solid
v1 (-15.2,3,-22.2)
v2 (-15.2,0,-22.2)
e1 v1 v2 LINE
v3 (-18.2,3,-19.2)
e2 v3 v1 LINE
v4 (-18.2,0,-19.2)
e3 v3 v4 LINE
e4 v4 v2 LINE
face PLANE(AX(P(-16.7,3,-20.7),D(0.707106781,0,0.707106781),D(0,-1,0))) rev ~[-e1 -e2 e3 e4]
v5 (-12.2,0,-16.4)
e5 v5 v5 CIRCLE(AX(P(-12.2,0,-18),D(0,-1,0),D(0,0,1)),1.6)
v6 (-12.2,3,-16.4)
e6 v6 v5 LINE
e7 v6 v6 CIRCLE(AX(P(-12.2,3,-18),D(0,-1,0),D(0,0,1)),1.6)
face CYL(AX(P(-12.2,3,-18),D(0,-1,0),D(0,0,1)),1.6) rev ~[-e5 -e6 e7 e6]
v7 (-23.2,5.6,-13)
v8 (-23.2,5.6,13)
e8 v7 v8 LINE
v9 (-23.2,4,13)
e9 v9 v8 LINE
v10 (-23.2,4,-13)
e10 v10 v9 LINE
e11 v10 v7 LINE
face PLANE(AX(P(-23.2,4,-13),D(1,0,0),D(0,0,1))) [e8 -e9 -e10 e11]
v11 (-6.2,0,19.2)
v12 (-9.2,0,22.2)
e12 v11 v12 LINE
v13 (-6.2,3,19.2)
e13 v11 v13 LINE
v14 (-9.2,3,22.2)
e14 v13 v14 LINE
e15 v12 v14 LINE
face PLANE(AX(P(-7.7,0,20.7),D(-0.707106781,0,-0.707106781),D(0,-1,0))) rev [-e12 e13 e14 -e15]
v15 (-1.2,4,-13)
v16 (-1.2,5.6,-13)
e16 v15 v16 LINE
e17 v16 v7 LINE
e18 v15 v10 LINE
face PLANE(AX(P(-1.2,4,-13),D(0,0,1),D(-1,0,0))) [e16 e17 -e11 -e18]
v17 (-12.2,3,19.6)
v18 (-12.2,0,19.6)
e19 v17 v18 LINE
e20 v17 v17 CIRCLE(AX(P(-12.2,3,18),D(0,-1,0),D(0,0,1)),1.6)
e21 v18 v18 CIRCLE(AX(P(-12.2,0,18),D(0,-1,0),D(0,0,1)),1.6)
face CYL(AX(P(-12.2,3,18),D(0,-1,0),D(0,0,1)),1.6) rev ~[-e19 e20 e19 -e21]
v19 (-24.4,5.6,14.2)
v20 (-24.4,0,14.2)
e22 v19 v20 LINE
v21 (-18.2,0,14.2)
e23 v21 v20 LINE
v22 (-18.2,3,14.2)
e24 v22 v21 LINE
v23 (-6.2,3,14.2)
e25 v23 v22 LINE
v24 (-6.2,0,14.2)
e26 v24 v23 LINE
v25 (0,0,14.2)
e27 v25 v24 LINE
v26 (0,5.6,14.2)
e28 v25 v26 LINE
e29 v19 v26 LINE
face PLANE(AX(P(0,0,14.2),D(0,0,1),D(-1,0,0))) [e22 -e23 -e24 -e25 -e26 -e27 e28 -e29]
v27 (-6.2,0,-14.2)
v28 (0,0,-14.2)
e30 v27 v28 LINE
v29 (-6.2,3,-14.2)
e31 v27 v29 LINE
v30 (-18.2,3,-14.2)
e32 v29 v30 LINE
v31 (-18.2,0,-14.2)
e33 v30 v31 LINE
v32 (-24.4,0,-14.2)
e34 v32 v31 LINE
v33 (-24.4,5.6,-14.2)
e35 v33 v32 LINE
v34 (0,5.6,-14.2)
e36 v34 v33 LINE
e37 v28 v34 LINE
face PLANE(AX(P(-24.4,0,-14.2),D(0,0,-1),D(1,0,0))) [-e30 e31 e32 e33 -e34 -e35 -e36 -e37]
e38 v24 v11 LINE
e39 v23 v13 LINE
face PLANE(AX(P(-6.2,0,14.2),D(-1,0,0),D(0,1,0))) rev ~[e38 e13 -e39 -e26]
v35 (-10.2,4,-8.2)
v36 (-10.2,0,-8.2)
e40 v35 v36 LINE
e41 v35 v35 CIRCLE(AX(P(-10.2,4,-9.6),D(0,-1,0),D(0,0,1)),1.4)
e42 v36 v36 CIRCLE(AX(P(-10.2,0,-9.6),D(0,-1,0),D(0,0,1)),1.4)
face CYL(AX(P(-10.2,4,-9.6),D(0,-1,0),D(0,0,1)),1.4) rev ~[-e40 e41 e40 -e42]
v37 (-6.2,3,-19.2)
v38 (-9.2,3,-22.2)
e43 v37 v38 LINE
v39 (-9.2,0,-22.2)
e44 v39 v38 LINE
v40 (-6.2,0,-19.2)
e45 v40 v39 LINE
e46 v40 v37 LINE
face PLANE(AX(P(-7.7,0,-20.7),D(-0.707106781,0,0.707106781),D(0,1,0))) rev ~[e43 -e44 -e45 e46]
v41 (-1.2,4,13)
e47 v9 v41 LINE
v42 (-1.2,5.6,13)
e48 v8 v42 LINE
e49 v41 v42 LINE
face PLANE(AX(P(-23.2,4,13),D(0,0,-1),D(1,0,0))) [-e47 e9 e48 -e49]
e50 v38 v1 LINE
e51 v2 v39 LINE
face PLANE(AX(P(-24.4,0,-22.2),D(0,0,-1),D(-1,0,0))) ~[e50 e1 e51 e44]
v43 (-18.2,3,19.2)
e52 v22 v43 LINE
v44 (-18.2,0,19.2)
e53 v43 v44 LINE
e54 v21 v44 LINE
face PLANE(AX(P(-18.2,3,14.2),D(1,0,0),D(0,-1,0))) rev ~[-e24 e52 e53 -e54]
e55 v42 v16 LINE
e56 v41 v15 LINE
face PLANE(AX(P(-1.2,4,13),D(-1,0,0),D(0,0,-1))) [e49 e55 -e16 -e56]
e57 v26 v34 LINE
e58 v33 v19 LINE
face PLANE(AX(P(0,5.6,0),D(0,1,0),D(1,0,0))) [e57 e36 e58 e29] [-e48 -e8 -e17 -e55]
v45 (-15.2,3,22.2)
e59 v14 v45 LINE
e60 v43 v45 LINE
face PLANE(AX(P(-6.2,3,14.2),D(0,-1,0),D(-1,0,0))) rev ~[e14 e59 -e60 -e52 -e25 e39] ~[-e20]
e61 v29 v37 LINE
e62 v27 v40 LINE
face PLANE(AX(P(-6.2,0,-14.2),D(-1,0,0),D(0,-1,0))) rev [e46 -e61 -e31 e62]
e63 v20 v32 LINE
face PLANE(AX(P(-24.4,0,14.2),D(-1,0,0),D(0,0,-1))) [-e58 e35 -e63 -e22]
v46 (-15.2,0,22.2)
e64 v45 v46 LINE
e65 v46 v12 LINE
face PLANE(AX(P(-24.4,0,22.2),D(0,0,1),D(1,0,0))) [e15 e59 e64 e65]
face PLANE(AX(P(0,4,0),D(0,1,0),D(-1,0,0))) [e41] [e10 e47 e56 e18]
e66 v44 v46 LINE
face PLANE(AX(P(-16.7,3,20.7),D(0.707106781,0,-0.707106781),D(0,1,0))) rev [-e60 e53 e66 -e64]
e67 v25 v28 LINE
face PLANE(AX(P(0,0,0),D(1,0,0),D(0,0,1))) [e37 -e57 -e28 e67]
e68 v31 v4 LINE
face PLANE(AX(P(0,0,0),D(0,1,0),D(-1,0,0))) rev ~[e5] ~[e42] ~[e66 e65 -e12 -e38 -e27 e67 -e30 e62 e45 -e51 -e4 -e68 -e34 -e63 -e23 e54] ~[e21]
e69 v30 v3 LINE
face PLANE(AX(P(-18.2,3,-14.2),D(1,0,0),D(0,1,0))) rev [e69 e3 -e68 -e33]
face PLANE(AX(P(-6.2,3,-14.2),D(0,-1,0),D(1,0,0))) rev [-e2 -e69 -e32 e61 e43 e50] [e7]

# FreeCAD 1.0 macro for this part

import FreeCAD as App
import Part
import Sketcher
Q = App.Units.Quantity


def edges_at(feature, points):
    """Names of the edges that pass closest to the given points."""
    edges = feature.Shape.Edges
    near = lambda p: min(range(len(edges)), key=lambda i: edges[i].distToShape(Part.Vertex(*p))[0])
    return sorted({f"Edge{near(p) + 1}" for p in points})


def add_polygon(sketch, points):
    """Adds a closed chain of lines whose ends are joined by coincident constraints."""
    first, n = sketch.GeometryCount, len(points)
    for a, b in zip(points, points[1:] + points[:1]):
        sketch.addGeometry(Part.LineSegment(App.Vector(*a, 0), App.Vector(*b, 0)), False)
    for i in range(n):
        sketch.addConstraint(Sketcher.Constraint("Coincident", first + i, 2, first + (i + 1) % n, 1))

doc = App.newDocument("Part")
body = doc.addObject("PartDesign::Body", "Body")

# Sketch on XZ plane
sketch1 = body.newObject("Sketcher::SketchObject", "Sketch")
sketch1.AttachmentSupport = (doc.getObject("XZ_Plane"), [""])
sketch1.MapMode = "FlatFace"
add_polygon(sketch1, [(-24.4, 14.2), (0, 14.2), (0, -14.2), (-24.4, -14.2)])  # lines 0-3
sketch1.addConstraint([
    Sketcher.Constraint("Horizontal", 0),
    Sketcher.Constraint("Vertical", 1),
    Sketcher.Constraint("Horizontal", 2),
    Sketcher.Constraint("Vertical", 3),
    Sketcher.Constraint("Symmetric", 0, 2, 1, 2, -1, 1),
    Sketcher.Constraint("DistanceX", 0, 1, 0, 2, Q("24.4 mm")),
    Sketcher.Constraint("DistanceY", 1, 2, 1, 1, Q("28.4 mm")),
])
pad1 = body.newObject("PartDesign::Pad", "Pad")
pad1.Profile = sketch1
pad1.Length = 4
pad1.Reversed = True

# Sketch on XZ plane
sketch2 = body.newObject("Sketcher::SketchObject", "Sketch001")
sketch2.AttachmentSupport = (doc.getObject("XZ_Plane"), [""])
sketch2.MapMode = "FlatFace"
sketch2.AttachmentOffset = App.Placement(App.Vector(0, 0, -4), App.Rotation())
add_polygon(sketch2, [(0, 14.2), (0, -14.2), (-24.4, -14.2), (-24.4, 14.2)])  # lines 0-3
add_polygon(sketch2, [(-1.2, 13), (-23.2, 13), (-23.2, -13), (-1.2, -13)])  # lines 4-7
sketch2.addConstraint([
    Sketcher.Constraint("Vertical", 0),
    Sketcher.Constraint("Horizontal", 1),
    Sketcher.Constraint("Vertical", 2),
    Sketcher.Constraint("Horizontal", 3),
    Sketcher.Constraint("Horizontal", 4),
    Sketcher.Constraint("Vertical", 5),
    Sketcher.Constraint("Horizontal", 6),
    Sketcher.Constraint("Vertical", 7),
    Sketcher.Constraint("Symmetric", 0, 2, 3, 2, -1, 1),
    Sketcher.Constraint("DistanceX", 4, 2, 4, 1, Q("22 mm")),
    Sketcher.Constraint("DistanceY", 5, 2, 5, 1, Q("26 mm")),
    Sketcher.Constraint("DistanceX", 1, 2, 1, 1, Q("24.4 mm")),
    Sketcher.Constraint("DistanceY", 0, 2, 0, 1, Q("28.4 mm")),
    Sketcher.Constraint("DistanceY", -1, 1, 4, 2, Q("13 mm")),
    Sketcher.Constraint("DistanceX", 4, 2, -1, 1, Q("23.2 mm")),
])
pad2 = body.newObject("PartDesign::Pad", "Pad001")
pad2.Profile = sketch2
pad2.Length = 1.6
pad2.Reversed = True

# Sketch on XY plane
sketch3 = body.newObject("Sketcher::SketchObject", "Sketch002")
sketch3.AttachmentSupport = (doc.getObject("XY_Plane"), [""])
sketch3.MapMode = "FlatFace"
sketch3.AttachmentOffset = App.Placement(App.Vector(0, 0, 14.2), App.Rotation())
add_polygon(sketch3, [(-18.2, 3), (-18.2, 0), (-6.2, 0), (-6.2, 3)])  # lines 0-3
sketch3.addConstraint([
    Sketcher.Constraint("Vertical", 0),
    Sketcher.Constraint("Horizontal", 1),
    Sketcher.Constraint("Vertical", 2),
    Sketcher.Constraint("Horizontal", 3),
    Sketcher.Constraint("PointOnObject", 0, 2, -1),
    Sketcher.Constraint("DistanceX", 1, 1, 1, 2, Q("12 mm")),
    Sketcher.Constraint("DistanceY", 0, 2, 0, 1, Q("3 mm")),
    Sketcher.Constraint("DistanceX", 0, 2, -1, 1, Q("18.2 mm")),
])
pad3 = body.newObject("PartDesign::Pad", "Pad002")
pad3.Profile = sketch3
pad3.Length = 8
doc.recompute()

chamfer = body.newObject("PartDesign::Chamfer", "Chamfer")
chamfer.Base = (pad3, edges_at(pad3, [(-6.2, 1.5, 22.2), (-18.2, 1.5, 22.2)]))
chamfer.Size = 3
doc.recompute()

mirrored = body.newObject("PartDesign::Mirrored", "Mirrored")
mirrored.Originals = [pad3, chamfer]
mirrored.MirrorPlane = (doc.getObject("XY_Plane"), [""])
body.Tip = mirrored

# Sketch on XZ plane
sketch4 = body.newObject("Sketcher::SketchObject", "Sketch003")
sketch4.AttachmentSupport = (doc.getObject("XZ_Plane"), [""])
sketch4.MapMode = "FlatFace"
sketch4.AttachmentOffset = App.Placement(App.Vector(0, 0, -3), App.Rotation())
sketch4.addGeometry([
    Part.Circle(App.Vector(-12.2, 18, 0), App.Vector(0, 0, 1), 1.6),
    Part.Circle(App.Vector(-12.2, -18, 0), App.Vector(0, 0, 1), 1.6),
], False)
sketch4.addConstraint([
    Sketcher.Constraint("Equal", 0, 1),
    Sketcher.Constraint("Symmetric", 0, 3, 1, 3, -1),
    Sketcher.Constraint("Diameter", 0, Q("3.2 mm")),
    Sketcher.Constraint("DistanceY", -1, 1, 0, 3, Q("18 mm")),
    Sketcher.Constraint("DistanceX", 0, 3, -1, 1, Q("12.2 mm")),
])
doc.recompute()
hole = body.newObject("PartDesign::Hole", "Hole")
hole.Profile = sketch4
hole.ThreadType = "None"
hole.Diameter = 3.2
hole.DepthType = "ThroughAll"
hole.Reversed = True

# Sketch on XZ plane
sketch5 = body.newObject("Sketcher::SketchObject", "Sketch004")
sketch5.AttachmentSupport = (doc.getObject("XZ_Plane"), [""])
sketch5.MapMode = "FlatFace"
sketch5.AttachmentOffset = App.Placement(App.Vector(0, 0, -4), App.Rotation())
sketch5.addGeometry(Part.Circle(App.Vector(-10.2, -9.6, 0), App.Vector(0, 0, 1), 1.4), False)
sketch5.addConstraint([
    Sketcher.Constraint("Diameter", 0, Q("2.8 mm")),
    Sketcher.Constraint("DistanceX", 0, 3, -1, 1, Q("10.2 mm")),
    Sketcher.Constraint("DistanceY", 0, 3, -1, 1, Q("9.6 mm")),
])
doc.recompute()
hole2 = body.newObject("PartDesign::Hole", "Hole001")
hole2.Profile = sketch5
hole2.ThreadType = "None"
hole2.Diameter = 2.8
hole2.DepthType = "ThroughAll"
hole2.Reversed = True

doc.recompute()
